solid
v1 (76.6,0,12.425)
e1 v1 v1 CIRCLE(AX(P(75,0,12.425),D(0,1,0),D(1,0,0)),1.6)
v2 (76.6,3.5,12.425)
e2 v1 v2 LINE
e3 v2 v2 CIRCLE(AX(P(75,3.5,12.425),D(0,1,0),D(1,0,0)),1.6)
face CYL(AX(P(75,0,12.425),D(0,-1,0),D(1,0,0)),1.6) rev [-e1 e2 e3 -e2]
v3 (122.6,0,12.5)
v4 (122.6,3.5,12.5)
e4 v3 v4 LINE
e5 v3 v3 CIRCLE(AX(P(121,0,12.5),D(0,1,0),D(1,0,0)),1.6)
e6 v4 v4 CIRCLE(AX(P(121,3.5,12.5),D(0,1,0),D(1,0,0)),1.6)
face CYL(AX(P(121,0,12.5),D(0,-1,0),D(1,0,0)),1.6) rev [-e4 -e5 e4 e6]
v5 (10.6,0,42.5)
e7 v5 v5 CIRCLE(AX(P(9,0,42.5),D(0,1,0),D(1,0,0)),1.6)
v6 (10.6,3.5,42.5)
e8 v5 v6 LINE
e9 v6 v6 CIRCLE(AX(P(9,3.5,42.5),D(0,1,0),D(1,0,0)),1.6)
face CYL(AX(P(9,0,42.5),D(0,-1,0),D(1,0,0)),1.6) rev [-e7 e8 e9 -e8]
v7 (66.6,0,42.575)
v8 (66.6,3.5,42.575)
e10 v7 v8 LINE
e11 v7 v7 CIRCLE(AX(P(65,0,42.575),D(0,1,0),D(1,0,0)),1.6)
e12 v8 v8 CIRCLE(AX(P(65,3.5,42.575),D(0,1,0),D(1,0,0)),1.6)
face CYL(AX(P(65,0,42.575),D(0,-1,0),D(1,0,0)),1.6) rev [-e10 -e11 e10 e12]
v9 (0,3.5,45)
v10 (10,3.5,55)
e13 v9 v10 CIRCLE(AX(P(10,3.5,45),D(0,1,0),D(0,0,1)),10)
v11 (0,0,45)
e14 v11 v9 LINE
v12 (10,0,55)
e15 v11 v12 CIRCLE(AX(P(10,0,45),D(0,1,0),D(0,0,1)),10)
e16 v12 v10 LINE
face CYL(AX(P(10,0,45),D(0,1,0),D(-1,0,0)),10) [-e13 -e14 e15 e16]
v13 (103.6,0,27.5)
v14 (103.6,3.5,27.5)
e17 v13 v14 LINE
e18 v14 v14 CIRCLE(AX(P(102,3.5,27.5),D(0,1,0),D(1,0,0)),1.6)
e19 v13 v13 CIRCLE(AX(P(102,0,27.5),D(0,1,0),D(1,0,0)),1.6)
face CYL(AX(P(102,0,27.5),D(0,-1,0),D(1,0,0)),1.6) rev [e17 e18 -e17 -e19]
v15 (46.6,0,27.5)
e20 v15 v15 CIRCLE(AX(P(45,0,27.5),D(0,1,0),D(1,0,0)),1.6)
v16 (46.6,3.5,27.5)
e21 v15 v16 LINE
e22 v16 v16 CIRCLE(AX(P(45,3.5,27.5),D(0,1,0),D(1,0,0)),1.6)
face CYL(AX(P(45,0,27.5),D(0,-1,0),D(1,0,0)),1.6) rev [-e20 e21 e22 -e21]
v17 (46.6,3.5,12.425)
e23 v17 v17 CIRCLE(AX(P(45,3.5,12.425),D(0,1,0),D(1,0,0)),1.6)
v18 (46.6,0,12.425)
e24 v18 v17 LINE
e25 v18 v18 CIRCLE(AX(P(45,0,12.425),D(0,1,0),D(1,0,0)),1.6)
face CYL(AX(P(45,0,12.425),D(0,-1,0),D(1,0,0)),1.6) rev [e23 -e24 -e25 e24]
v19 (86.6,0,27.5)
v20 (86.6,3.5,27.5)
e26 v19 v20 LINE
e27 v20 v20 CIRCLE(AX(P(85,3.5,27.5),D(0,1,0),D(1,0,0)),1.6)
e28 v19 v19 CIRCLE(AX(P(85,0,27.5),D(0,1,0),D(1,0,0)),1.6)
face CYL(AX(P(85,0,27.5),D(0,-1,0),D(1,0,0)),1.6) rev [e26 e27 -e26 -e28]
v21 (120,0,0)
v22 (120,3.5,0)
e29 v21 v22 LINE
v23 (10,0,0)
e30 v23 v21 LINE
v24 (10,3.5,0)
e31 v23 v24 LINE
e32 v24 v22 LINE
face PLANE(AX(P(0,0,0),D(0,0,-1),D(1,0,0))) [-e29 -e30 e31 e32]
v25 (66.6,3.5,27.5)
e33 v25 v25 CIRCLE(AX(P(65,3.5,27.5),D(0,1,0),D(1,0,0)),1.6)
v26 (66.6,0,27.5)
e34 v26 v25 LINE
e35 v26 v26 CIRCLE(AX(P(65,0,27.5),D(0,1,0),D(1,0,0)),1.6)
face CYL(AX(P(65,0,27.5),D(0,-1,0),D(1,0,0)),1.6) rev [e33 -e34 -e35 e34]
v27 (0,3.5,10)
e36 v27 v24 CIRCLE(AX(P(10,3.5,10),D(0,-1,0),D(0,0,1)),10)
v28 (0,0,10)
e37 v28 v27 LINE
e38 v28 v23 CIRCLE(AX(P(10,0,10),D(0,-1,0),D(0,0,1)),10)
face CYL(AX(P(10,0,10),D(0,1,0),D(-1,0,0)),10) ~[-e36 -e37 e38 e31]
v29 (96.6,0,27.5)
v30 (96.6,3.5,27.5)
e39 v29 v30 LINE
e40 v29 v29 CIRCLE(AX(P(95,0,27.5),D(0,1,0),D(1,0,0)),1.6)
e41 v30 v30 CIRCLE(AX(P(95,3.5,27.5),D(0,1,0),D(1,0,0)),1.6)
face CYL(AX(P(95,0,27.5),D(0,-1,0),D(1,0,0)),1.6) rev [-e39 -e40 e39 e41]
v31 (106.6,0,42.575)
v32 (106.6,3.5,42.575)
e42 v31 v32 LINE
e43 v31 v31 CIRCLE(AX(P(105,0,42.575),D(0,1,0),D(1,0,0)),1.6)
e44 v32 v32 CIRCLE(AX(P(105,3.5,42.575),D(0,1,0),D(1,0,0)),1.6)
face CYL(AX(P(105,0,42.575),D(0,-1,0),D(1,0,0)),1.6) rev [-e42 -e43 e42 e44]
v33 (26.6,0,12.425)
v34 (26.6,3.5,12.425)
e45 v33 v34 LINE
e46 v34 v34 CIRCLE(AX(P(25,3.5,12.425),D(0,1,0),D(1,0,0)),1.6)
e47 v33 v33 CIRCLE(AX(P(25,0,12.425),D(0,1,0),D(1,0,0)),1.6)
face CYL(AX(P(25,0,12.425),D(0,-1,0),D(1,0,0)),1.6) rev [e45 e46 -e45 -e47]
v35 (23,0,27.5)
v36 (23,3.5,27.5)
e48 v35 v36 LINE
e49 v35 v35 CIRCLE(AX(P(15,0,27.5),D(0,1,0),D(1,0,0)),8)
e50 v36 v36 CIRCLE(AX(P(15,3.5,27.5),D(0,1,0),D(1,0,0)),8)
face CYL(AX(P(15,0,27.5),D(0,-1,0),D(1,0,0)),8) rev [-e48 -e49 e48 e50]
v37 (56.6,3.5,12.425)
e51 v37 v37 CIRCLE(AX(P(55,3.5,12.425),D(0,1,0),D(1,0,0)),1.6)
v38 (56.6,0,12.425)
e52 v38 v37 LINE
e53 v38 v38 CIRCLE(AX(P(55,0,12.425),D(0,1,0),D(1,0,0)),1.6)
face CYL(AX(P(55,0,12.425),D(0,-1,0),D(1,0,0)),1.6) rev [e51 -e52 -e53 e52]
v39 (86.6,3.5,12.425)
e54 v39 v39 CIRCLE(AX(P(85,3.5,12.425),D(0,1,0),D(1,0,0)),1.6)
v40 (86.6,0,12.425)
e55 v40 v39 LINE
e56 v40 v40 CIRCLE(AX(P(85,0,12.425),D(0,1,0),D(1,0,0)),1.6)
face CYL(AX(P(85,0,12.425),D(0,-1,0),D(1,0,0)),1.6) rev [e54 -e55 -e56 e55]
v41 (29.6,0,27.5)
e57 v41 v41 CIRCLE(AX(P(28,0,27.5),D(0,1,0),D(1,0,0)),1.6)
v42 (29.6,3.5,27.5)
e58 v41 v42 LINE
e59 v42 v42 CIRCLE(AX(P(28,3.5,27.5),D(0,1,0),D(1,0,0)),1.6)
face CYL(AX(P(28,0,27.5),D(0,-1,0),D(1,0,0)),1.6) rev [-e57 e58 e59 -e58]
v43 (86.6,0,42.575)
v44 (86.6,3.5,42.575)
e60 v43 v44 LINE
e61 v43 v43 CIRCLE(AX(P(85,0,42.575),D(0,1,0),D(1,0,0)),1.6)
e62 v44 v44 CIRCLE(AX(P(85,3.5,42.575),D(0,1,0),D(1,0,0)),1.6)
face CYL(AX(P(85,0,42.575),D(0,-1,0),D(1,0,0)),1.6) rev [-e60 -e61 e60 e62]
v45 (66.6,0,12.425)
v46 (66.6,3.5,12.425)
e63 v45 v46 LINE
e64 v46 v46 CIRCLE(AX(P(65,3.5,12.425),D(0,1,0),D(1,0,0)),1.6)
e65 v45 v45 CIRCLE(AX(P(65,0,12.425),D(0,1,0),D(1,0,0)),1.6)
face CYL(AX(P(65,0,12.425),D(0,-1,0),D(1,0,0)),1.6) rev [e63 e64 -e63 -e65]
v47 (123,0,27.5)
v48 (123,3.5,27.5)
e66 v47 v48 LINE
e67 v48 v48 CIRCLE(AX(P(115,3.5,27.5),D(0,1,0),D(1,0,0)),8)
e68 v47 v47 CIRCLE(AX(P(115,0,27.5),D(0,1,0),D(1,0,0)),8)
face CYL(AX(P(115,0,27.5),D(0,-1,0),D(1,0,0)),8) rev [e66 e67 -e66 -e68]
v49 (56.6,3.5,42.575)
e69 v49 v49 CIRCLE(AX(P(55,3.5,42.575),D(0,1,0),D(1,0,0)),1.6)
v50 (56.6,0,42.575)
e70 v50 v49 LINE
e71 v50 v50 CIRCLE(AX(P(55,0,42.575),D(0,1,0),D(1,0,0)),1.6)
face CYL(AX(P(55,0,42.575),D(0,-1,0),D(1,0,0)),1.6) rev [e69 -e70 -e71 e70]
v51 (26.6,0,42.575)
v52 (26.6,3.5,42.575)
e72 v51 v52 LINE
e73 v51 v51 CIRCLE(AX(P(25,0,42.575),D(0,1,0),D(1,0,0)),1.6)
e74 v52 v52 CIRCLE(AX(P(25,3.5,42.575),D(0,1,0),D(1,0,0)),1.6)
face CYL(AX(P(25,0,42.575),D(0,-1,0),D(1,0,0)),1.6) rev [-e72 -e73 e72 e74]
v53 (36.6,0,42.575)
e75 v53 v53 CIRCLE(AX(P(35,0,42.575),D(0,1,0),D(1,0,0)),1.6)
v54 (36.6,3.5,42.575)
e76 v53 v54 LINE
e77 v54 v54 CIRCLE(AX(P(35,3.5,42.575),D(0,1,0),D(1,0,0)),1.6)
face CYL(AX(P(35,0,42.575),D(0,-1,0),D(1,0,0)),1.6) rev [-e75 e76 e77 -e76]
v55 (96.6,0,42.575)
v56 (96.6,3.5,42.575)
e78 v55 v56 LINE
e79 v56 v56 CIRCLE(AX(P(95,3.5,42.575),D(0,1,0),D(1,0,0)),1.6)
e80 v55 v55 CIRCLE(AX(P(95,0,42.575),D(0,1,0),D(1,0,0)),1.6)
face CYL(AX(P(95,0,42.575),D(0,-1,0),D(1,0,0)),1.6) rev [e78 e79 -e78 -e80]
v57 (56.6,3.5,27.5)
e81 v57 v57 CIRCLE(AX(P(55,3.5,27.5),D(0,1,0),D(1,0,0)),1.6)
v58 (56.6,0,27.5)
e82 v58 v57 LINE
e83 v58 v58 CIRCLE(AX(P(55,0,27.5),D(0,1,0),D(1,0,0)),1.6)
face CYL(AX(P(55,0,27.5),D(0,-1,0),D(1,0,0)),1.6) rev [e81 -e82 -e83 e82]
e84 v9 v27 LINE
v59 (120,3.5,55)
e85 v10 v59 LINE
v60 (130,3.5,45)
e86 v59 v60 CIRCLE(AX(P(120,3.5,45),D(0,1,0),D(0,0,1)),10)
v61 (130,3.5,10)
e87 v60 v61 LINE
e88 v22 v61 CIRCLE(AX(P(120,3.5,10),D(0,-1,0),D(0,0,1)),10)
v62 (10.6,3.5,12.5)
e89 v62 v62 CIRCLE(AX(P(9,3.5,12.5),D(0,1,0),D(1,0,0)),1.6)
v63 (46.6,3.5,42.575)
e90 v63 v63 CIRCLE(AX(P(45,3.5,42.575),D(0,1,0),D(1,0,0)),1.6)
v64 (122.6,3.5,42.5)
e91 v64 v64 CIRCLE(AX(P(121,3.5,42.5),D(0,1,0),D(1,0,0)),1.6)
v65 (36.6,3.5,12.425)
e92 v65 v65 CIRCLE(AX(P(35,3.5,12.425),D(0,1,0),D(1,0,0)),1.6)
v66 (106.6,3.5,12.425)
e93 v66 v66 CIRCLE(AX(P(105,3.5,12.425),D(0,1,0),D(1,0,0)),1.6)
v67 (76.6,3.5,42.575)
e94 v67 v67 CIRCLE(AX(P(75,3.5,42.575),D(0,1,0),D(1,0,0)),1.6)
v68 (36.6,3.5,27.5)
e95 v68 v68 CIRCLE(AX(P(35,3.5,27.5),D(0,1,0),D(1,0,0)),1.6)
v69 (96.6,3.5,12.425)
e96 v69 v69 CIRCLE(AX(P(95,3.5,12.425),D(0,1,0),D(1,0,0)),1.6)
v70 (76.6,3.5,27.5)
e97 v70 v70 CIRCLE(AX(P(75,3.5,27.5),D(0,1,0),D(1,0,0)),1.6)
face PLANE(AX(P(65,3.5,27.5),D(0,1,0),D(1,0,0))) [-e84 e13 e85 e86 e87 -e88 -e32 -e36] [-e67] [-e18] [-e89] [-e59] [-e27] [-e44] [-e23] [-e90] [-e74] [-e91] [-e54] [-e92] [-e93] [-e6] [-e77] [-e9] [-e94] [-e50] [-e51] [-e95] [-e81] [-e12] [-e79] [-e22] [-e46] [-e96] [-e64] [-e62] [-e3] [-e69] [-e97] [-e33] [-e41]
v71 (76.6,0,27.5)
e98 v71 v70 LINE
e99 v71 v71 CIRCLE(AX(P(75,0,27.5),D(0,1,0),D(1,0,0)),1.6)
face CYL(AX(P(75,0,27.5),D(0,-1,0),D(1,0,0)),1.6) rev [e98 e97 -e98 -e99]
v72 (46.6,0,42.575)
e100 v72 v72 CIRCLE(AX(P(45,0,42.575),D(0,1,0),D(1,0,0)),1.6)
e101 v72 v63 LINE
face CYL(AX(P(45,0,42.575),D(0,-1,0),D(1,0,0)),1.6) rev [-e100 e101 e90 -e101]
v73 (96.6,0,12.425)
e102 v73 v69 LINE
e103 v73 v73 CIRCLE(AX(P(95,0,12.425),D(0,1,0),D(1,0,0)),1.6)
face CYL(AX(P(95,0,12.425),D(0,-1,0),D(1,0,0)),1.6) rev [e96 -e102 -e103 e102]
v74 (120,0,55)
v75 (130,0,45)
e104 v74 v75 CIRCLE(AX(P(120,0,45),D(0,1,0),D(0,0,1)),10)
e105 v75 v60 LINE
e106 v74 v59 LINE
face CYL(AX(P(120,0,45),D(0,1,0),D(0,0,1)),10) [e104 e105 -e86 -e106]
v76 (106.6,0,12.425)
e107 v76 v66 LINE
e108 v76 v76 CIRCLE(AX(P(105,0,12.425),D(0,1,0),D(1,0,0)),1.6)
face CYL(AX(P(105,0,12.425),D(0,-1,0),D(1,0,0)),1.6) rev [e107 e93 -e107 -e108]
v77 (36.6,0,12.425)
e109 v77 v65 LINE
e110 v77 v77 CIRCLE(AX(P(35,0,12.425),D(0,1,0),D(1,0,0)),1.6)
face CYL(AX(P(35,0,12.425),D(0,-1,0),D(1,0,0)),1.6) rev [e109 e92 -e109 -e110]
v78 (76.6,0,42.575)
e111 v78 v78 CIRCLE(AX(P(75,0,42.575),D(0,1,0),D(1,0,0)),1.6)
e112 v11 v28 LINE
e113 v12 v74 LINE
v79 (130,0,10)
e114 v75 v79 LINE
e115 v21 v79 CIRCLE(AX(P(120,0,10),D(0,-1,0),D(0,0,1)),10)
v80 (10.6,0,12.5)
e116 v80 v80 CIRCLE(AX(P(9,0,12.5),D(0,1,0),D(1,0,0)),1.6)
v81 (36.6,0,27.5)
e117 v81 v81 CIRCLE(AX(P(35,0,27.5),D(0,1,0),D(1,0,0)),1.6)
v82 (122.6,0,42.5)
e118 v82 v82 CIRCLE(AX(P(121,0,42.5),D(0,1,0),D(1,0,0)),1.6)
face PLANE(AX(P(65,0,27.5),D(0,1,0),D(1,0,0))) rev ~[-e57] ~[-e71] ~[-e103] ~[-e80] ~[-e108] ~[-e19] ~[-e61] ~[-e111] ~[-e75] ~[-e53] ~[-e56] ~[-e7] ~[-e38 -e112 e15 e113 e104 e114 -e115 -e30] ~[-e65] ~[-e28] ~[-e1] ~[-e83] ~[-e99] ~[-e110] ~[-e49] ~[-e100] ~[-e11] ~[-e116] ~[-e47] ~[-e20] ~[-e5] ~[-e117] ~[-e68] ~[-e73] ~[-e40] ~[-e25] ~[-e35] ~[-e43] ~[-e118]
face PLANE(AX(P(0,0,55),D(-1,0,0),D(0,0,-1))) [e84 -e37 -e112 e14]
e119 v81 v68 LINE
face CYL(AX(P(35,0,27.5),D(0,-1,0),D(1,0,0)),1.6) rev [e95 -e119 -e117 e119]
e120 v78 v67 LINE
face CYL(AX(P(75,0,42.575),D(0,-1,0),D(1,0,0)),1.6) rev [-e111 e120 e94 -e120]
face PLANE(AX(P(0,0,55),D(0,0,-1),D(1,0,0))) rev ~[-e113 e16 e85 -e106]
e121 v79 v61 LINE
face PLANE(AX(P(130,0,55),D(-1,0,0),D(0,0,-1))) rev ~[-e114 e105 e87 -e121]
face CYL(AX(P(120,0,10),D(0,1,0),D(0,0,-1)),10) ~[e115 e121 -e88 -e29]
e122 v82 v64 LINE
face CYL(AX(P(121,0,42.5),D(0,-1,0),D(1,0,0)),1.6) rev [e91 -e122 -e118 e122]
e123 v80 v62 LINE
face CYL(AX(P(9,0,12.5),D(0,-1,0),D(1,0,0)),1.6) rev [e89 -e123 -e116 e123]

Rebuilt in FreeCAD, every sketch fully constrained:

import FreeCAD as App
import Part
import Sketcher
from FreeCAD import Vector


def edges_at(feature, points):
    """Names of the edges that pass closest to the given points."""
    edges = feature.Shape.Edges
    near = lambda p: min(range(len(edges)), key=lambda i: edges[i].distToShape(Part.Vertex(*p))[0])
    return sorted({f"Edge{near(p) + 1}" for p in points})

doc = App.newDocument("Part")
body = doc.addObject("PartDesign::Body", "Body")

sketch1 = body.newObject("Sketcher::SketchObject", "Sketch")
sketch1.AttachmentSupport = (doc.getObject("XZ_Plane"), [""])
sketch1.MapMode = "FlatFace"
sketch1.addGeometry([
    Part.LineSegment(Vector(0, 0, 0), Vector(0, 55, 0)),
    Part.LineSegment(Vector(0, 55, 0), Vector(130, 55, 0)),
    Part.LineSegment(Vector(130, 55, 0), Vector(130, 0, 0)),
    Part.LineSegment(Vector(130, 0, 0), Vector(0, 0, 0)),
    Part.Circle(Vector(9, 42.5, 0), Vector(0, 0, 1), 1.6),
    Part.Circle(Vector(25, 42.6, 0), Vector(0, 0, 1), 1.6),
    Part.Circle(Vector(35, 42.6, 0), Vector(0, 0, 1), 1.6),
    Part.Circle(Vector(45, 42.6, 0), Vector(0, 0, 1), 1.6),
    Part.Circle(Vector(55, 42.6, 0), Vector(0, 0, 1), 1.6),
    Part.Circle(Vector(65, 42.6, 0), Vector(0, 0, 1), 1.6),
    Part.Circle(Vector(75, 42.6, 0), Vector(0, 0, 1), 1.6),
    Part.Circle(Vector(85, 42.6, 0), Vector(0, 0, 1), 1.6),
    Part.Circle(Vector(95, 42.6, 0), Vector(0, 0, 1), 1.6),
    Part.Circle(Vector(105, 42.6, 0), Vector(0, 0, 1), 1.6),
    Part.Circle(Vector(121, 42.5, 0), Vector(0, 0, 1), 1.6),
    Part.Circle(Vector(15, 27.5, 0), Vector(0, 0, 1), 8),
    Part.Circle(Vector(28, 27.5, 0), Vector(0, 0, 1), 1.6),
    Part.Circle(Vector(35, 27.5, 0), Vector(0, 0, 1), 1.6),
    Part.Circle(Vector(45, 27.5, 0), Vector(0, 0, 1), 1.6),
    Part.Circle(Vector(55, 27.5, 0), Vector(0, 0, 1), 1.6),
    Part.Circle(Vector(9, 12.5, 0), Vector(0, 0, 1), 1.6),
    Part.Circle(Vector(25, 12.4, 0), Vector(0, 0, 1), 1.6),
    Part.Circle(Vector(35, 12.4, 0), Vector(0, 0, 1), 1.6),
    Part.Circle(Vector(45, 12.4, 0), Vector(0, 0, 1), 1.6),
    Part.Circle(Vector(55, 12.4, 0), Vector(0, 0, 1), 1.6),
    Part.Circle(Vector(65, 27.5, 0), Vector(0, 0, 1), 1.6),
    Part.Circle(Vector(75, 27.5, 0), Vector(0, 0, 1), 1.6),
    Part.Circle(Vector(85, 27.5, 0), Vector(0, 0, 1), 1.6),
    Part.Circle(Vector(95, 27.5, 0), Vector(0, 0, 1), 1.6),
    Part.Circle(Vector(102, 27.5, 0), Vector(0, 0, 1), 1.6),
    Part.Circle(Vector(115, 27.5, 0), Vector(0, 0, 1), 8),
    Part.Circle(Vector(65, 12.4, 0), Vector(0, 0, 1), 1.6),
    Part.Circle(Vector(75, 12.4, 0), Vector(0, 0, 1), 1.6),
    Part.Circle(Vector(85, 12.4, 0), Vector(0, 0, 1), 1.6),
    Part.Circle(Vector(95, 12.4, 0), Vector(0, 0, 1), 1.6),
    Part.Circle(Vector(105, 12.4, 0), Vector(0, 0, 1), 1.6),
    Part.Circle(Vector(121, 12.5, 0), Vector(0, 0, 1), 1.6),
], False)
sketch1.addConstraint([
    Sketcher.Constraint("Coincident", 0, 2, 1, 1),
    Sketcher.Constraint("Coincident", 1, 2, 2, 1),
    Sketcher.Constraint("Coincident", 2, 2, 3, 1),
    Sketcher.Constraint("Coincident", 3, 2, 0, 1),
    Sketcher.Constraint("Vertical", 0),
    Sketcher.Constraint("Horizontal", 1),
    Sketcher.Constraint("Vertical", 2),
    Sketcher.Constraint("Horizontal", 3),
    Sketcher.Constraint("Coincident", 3, 2, -1, 1),
    Sketcher.Constraint("Equal", 4, 5),
    Sketcher.Constraint("Equal", 5, 6),
    Sketcher.Constraint("Equal", 6, 7),
    Sketcher.Constraint("Equal", 7, 8),
    Sketcher.Constraint("Equal", 8, 9),
    Sketcher.Constraint("Equal", 9, 10),
    Sketcher.Constraint("Equal", 10, 11),
    Sketcher.Constraint("Equal", 11, 12),
    Sketcher.Constraint("Equal", 12, 13),
    Sketcher.Constraint("Equal", 13, 14),
    Sketcher.Constraint("Equal", 14, 16),
    Sketcher.Constraint("Equal", 16, 17),
    Sketcher.Constraint("Equal", 17, 18),
    Sketcher.Constraint("Equal", 18, 19),
    Sketcher.Constraint("Equal", 19, 20),
    Sketcher.Constraint("Equal", 20, 21),
    Sketcher.Constraint("Equal", 21, 22),
    Sketcher.Constraint("Equal", 22, 23),
    Sketcher.Constraint("Equal", 23, 24),
    Sketcher.Constraint("Equal", 24, 25),
    Sketcher.Constraint("Equal", 25, 26),
    Sketcher.Constraint("Equal", 26, 27),
    Sketcher.Constraint("Equal", 27, 28),
    Sketcher.Constraint("Equal", 28, 29),
    Sketcher.Constraint("Equal", 15, 30),
    Sketcher.Constraint("Equal", 29, 31),
    Sketcher.Constraint("Equal", 31, 32),
    Sketcher.Constraint("Equal", 32, 33),
    Sketcher.Constraint("Equal", 33, 34),
    Sketcher.Constraint("Equal", 34, 35),
    Sketcher.Constraint("Equal", 35, 36),
    Sketcher.Constraint("Horizontal", 5, 3, 6, 3),
    Sketcher.Constraint("Horizontal", 6, 3, 7, 3),
    Sketcher.Constraint("Horizontal", 7, 3, 8, 3),
    Sketcher.Constraint("Horizontal", 8, 3, 9, 3),
    Sketcher.Constraint("Horizontal", 9, 3, 10, 3),
    Sketcher.Constraint("Horizontal", 10, 3, 11, 3),
    Sketcher.Constraint("Horizontal", 11, 3, 12, 3),
    Sketcher.Constraint("Horizontal", 12, 3, 13, 3),
    Sketcher.Constraint("Horizontal", 4, 3, 14, 3),
    Sketcher.Constraint("Horizontal", 15, 3, 16, 3),
    Sketcher.Constraint("Horizontal", 16, 3, 17, 3),
    Sketcher.Constraint("Horizontal", 17, 3, 18, 3),
    Sketcher.Constraint("Horizontal", 18, 3, 19, 3),
    Sketcher.Constraint("Horizontal", 21, 3, 22, 3),
    Sketcher.Constraint("Horizontal", 22, 3, 23, 3),
    Sketcher.Constraint("Horizontal", 23, 3, 24, 3),
    Sketcher.Constraint("Horizontal", 19, 3, 25, 3),
    Sketcher.Constraint("Horizontal", 25, 3, 26, 3),
    Sketcher.Constraint("Horizontal", 26, 3, 27, 3),
    Sketcher.Constraint("Horizontal", 27, 3, 28, 3),
    Sketcher.Constraint("Horizontal", 28, 3, 29, 3),
    Sketcher.Constraint("Horizontal", 29, 3, 30, 3),
    Sketcher.Constraint("Horizontal", 24, 3, 31, 3),
    Sketcher.Constraint("Horizontal", 31, 3, 32, 3),
    Sketcher.Constraint("Horizontal", 32, 3, 33, 3),
    Sketcher.Constraint("Horizontal", 33, 3, 34, 3),
    Sketcher.Constraint("Horizontal", 34, 3, 35, 3),
    Sketcher.Constraint("Horizontal", 20, 3, 36, 3),
    Sketcher.Constraint("Vertical", 6, 3, 17, 3),
    Sketcher.Constraint("Vertical", 7, 3, 18, 3),
    Sketcher.Constraint("Vertical", 8, 3, 19, 3),
    Sketcher.Constraint("Vertical", 4, 3, 20, 3),
    Sketcher.Constraint("Vertical", 5, 3, 21, 3),
    Sketcher.Constraint("Vertical", 17, 3, 22, 3),
    Sketcher.Constraint("Vertical", 18, 3, 23, 3),
    Sketcher.Constraint("Vertical", 19, 3, 24, 3),
    Sketcher.Constraint("Vertical", 9, 3, 25, 3),
    Sketcher.Constraint("Vertical", 10, 3, 26, 3),
    Sketcher.Constraint("Vertical", 11, 3, 27, 3),
    Sketcher.Constraint("Vertical", 12, 3, 28, 3),
    Sketcher.Constraint("Vertical", 25, 3, 31, 3),
    Sketcher.Constraint("Vertical", 26, 3, 32, 3),
    Sketcher.Constraint("Vertical", 27, 3, 33, 3),
    Sketcher.Constraint("Vertical", 28, 3, 34, 3),
    Sketcher.Constraint("Vertical", 13, 3, 35, 3),
    Sketcher.Constraint("Vertical", 14, 3, 36, 3),
    Sketcher.Constraint("Diameter", 15, 16.0),
    Sketcher.Constraint("Diameter", 4, 3.2),
    Sketcher.Constraint("DistanceX", 1, 1, 1, 2, 130.0),
    Sketcher.Constraint("DistanceY", 0, 1, 0, 2, 55.0),
    Sketcher.Constraint("DistanceX", -1, 1, 4, 3, 9.0),
    Sketcher.Constraint("DistanceX", -1, 1, 5, 3, 25.0),
    Sketcher.Constraint("DistanceX", -1, 1, 6, 3, 35.0),
    Sketcher.Constraint("DistanceX", -1, 1, 7, 3, 45.0),
    Sketcher.Constraint("DistanceX", -1, 1, 8, 3, 55.0),
    Sketcher.Constraint("DistanceX", -1, 1, 9, 3, 65.0),
    Sketcher.Constraint("DistanceX", -1, 1, 10, 3, 75.0),
    Sketcher.Constraint("DistanceX", -1, 1, 11, 3, 85.0),
    Sketcher.Constraint("DistanceX", -1, 1, 12, 3, 95.0),
    Sketcher.Constraint("DistanceX", -1, 1, 13, 3, 105.0),
    Sketcher.Constraint("DistanceX", -1, 1, 14, 3, 121.0),
    Sketcher.Constraint("DistanceX", -1, 1, 15, 3, 15.0),
    Sketcher.Constraint("DistanceX", -1, 1, 16, 3, 28.0),
    Sketcher.Constraint("DistanceX", -1, 1, 29, 3, 102.0),
    Sketcher.Constraint("DistanceX", -1, 1, 30, 3, 115.0),
    Sketcher.Constraint("DistanceY", 15, 3, 4, 3, 15.0),
    Sketcher.Constraint("DistanceY", 20, 3, 15, 3, 15.0),
    Sketcher.Constraint("DistanceY", -1, 1, 4, 3, 42.5),
    Sketcher.Constraint("DistanceY", -1, 1, 5, 3, 42.575),
    Sketcher.Constraint("DistanceY", -1, 1, 21, 3, 12.425),
])
pad1 = body.newObject("PartDesign::Pad", "Pad")
pad1.Profile = sketch1
pad1.Length = 3.5
pad1.Reversed = True
doc.recompute()

fillet = body.newObject("PartDesign::Fillet", "Fillet")
fillet.Base = (pad1, edges_at(pad1, [
    (0, 1.75, 0),
    (130, 1.75, 0),
    (130, 1.75, 55),
    (0, 1.75, 55),
]))
fillet.Radius = 10

doc.recompute()
